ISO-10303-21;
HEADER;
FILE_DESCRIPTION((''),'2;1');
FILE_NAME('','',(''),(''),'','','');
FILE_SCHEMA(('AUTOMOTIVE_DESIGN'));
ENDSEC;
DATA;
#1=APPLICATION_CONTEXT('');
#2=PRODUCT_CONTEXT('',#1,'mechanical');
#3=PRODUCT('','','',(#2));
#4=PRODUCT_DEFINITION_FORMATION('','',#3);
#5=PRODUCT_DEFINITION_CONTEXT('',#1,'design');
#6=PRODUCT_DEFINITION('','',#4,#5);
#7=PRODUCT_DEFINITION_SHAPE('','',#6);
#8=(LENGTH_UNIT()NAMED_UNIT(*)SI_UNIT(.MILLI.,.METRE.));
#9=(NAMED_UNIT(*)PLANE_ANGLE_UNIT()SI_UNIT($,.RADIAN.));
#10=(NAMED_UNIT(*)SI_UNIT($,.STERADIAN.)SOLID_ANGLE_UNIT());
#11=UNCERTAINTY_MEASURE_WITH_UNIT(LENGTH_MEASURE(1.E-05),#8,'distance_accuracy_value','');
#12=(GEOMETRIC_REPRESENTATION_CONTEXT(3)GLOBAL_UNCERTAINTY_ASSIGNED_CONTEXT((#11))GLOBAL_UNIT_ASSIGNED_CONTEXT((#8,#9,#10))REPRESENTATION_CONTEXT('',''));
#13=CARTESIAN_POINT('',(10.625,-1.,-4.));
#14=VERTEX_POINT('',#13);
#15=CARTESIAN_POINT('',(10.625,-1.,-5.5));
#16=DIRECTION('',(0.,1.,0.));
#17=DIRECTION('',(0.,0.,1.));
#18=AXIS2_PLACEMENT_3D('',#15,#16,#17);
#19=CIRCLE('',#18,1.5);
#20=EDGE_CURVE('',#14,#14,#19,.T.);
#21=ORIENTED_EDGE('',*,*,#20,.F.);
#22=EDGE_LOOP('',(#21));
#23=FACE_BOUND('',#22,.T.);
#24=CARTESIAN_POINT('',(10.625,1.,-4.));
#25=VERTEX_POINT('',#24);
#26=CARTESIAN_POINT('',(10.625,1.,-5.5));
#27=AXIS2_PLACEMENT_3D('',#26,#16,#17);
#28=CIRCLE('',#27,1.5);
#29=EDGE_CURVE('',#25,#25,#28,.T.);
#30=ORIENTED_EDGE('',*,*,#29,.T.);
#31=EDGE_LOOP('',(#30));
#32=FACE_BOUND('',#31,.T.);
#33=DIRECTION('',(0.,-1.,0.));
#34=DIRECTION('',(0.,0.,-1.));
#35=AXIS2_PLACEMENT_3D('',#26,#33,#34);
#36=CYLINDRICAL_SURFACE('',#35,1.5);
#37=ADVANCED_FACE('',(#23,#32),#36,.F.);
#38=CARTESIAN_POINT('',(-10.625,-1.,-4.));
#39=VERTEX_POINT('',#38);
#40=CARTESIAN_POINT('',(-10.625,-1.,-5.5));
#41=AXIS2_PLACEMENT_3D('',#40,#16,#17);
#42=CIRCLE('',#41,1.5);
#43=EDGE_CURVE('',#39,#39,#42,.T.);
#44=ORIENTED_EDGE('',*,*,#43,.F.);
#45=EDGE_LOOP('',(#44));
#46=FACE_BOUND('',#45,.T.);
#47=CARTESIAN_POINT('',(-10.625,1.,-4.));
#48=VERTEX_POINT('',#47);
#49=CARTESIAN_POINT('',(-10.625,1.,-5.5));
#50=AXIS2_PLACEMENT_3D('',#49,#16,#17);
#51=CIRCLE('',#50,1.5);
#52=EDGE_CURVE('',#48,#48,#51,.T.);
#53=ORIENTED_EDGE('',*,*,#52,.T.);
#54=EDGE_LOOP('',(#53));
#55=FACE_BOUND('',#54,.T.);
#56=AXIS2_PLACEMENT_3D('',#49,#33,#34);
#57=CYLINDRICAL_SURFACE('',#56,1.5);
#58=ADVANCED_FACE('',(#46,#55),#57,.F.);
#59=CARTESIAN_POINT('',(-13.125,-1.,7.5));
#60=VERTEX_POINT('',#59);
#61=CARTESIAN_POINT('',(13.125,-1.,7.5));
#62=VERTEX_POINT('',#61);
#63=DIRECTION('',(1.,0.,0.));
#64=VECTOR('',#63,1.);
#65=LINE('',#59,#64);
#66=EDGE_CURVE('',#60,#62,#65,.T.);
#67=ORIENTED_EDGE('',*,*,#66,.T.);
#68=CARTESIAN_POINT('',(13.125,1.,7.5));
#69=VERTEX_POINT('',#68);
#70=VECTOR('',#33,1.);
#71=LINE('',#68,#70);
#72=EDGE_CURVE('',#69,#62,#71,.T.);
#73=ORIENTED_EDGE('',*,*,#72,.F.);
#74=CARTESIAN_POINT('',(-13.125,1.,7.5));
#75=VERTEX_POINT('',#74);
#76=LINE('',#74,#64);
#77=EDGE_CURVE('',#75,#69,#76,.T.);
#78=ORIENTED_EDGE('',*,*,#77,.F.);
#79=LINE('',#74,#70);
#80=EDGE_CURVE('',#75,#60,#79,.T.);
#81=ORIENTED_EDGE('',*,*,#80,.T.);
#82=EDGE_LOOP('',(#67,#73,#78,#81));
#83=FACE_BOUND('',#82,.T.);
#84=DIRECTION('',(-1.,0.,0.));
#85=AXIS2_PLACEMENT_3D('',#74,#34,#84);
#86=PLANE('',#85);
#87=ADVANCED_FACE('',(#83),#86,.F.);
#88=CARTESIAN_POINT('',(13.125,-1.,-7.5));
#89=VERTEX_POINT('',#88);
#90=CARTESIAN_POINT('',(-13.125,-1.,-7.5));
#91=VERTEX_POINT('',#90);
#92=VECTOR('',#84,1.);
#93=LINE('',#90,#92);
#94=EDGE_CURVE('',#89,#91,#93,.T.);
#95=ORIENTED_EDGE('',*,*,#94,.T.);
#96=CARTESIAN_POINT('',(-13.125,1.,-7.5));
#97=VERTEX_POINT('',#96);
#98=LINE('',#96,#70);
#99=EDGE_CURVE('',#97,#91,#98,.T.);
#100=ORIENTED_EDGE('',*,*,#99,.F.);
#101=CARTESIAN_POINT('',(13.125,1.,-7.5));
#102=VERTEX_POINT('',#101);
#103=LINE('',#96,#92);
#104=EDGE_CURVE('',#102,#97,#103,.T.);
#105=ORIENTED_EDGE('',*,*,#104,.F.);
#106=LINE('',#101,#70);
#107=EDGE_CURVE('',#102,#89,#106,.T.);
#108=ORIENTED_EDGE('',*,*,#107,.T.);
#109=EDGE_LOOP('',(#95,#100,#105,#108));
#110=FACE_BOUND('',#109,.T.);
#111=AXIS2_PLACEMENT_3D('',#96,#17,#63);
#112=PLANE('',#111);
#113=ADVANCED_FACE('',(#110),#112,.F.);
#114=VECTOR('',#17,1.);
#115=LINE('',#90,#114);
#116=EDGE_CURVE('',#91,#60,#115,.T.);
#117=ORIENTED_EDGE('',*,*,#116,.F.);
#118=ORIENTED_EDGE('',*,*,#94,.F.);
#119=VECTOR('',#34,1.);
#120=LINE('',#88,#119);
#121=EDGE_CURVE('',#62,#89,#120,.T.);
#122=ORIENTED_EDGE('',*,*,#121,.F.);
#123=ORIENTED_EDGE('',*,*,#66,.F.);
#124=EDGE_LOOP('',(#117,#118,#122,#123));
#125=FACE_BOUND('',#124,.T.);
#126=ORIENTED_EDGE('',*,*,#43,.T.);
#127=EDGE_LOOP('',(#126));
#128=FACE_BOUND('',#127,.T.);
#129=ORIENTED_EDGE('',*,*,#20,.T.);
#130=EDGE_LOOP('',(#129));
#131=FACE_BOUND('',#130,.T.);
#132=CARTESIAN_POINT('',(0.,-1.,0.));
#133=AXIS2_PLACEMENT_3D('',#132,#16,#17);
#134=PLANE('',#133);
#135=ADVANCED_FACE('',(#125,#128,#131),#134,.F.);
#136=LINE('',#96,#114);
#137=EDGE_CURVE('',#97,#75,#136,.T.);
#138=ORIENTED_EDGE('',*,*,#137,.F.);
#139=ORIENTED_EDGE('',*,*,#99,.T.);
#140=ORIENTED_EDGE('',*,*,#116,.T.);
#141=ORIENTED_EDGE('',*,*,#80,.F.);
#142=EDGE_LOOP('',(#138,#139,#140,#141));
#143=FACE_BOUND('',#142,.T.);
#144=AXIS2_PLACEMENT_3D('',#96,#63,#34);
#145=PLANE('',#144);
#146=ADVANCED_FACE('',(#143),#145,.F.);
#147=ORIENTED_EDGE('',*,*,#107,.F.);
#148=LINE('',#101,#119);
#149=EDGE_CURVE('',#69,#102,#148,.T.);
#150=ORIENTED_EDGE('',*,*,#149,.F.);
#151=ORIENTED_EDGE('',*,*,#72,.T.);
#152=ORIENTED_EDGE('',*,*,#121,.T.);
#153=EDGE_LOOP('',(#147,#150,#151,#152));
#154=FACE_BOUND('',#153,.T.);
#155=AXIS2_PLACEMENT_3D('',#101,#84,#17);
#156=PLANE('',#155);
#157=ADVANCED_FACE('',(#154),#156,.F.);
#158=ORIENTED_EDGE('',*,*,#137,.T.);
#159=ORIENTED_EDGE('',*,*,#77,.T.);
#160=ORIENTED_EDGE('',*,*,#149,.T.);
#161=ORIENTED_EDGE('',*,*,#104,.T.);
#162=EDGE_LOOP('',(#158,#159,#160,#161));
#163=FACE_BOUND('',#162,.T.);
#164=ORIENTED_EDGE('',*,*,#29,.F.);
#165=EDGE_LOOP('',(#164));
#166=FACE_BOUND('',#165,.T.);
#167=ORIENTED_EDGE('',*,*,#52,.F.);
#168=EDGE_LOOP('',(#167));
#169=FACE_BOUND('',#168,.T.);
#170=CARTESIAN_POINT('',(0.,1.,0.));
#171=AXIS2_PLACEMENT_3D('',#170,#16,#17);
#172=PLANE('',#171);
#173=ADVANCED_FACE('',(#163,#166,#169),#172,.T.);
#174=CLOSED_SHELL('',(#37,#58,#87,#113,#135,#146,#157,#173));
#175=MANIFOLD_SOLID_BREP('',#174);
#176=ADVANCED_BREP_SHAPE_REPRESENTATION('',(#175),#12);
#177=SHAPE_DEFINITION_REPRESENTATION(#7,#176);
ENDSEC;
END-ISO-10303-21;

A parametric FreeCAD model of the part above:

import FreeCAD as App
import Part
import Sketcher
Q = App.Units.Quantity

doc = App.newDocument("Part")
body = doc.addObject("PartDesign::Body", "Body")

sketch1 = doc.addObject("Sketcher::SketchObject", "Sketch")
body.addObject(sketch1)
sketch1.AttachmentSupport = (doc.XZ_Plane, [""])
sketch1.MapMode = "FlatFace"
sketch1.addGeometry([
    Part.LineSegment(App.Vector(-13.125, -7.5, 0), App.Vector(-13.125, 7.5, 0)),
    Part.LineSegment(App.Vector(-13.125, 7.5, 0), App.Vector(13.125, 7.5, 0)),
    Part.LineSegment(App.Vector(13.125, 7.5, 0), App.Vector(13.125, -7.5, 0)),
    Part.LineSegment(App.Vector(13.125, -7.5, 0), App.Vector(-13.125, -7.5, 0)),
    Part.Circle(App.Vector(-10.625, -5.5, 0), App.Vector(0, 0, 1), 1.5),
    Part.Circle(App.Vector(10.625, -5.5, 0), App.Vector(0, 0, 1), 1.5),
], False)
sketch1.addConstraint([
    Sketcher.Constraint("Coincident", 0, 2, 1, 1),
    Sketcher.Constraint("Coincident", 1, 2, 2, 1),
    Sketcher.Constraint("Coincident", 2, 2, 3, 1),
    Sketcher.Constraint("Coincident", 3, 2, 0, 1),
    Sketcher.Constraint("Vertical", 0),
    Sketcher.Constraint("Horizontal", 1),
    Sketcher.Constraint("Vertical", 2),
    Sketcher.Constraint("Horizontal", 3),
    Sketcher.Constraint("Equal", 4, 5),
    Sketcher.Constraint("Symmetric", 0, 2, 2, 2, -1, 1),
    Sketcher.Constraint("Symmetric", 4, 3, 5, 3, -2),
    Sketcher.Constraint("Diameter", 4, Q("3 mm")),
    Sketcher.Constraint("DistanceY", 0, 1, 0, 2, Q("15 mm")),
    Sketcher.Constraint("DistanceY", 4, 3, 0, 2, Q("13 mm")),
    Sketcher.Constraint("DistanceX", 1, 1, 1, 2, Q("26.25 mm")),
    Sketcher.Constraint("DistanceX", 0, 2, 4, 3, Q("2.5 mm")),
])
pad1 = doc.addObject("PartDesign::Pad", "Pad")
body.addObject(pad1)
pad1.Profile = sketch1
pad1.Length = 2
pad1.Midplane = True

doc.recompute()
